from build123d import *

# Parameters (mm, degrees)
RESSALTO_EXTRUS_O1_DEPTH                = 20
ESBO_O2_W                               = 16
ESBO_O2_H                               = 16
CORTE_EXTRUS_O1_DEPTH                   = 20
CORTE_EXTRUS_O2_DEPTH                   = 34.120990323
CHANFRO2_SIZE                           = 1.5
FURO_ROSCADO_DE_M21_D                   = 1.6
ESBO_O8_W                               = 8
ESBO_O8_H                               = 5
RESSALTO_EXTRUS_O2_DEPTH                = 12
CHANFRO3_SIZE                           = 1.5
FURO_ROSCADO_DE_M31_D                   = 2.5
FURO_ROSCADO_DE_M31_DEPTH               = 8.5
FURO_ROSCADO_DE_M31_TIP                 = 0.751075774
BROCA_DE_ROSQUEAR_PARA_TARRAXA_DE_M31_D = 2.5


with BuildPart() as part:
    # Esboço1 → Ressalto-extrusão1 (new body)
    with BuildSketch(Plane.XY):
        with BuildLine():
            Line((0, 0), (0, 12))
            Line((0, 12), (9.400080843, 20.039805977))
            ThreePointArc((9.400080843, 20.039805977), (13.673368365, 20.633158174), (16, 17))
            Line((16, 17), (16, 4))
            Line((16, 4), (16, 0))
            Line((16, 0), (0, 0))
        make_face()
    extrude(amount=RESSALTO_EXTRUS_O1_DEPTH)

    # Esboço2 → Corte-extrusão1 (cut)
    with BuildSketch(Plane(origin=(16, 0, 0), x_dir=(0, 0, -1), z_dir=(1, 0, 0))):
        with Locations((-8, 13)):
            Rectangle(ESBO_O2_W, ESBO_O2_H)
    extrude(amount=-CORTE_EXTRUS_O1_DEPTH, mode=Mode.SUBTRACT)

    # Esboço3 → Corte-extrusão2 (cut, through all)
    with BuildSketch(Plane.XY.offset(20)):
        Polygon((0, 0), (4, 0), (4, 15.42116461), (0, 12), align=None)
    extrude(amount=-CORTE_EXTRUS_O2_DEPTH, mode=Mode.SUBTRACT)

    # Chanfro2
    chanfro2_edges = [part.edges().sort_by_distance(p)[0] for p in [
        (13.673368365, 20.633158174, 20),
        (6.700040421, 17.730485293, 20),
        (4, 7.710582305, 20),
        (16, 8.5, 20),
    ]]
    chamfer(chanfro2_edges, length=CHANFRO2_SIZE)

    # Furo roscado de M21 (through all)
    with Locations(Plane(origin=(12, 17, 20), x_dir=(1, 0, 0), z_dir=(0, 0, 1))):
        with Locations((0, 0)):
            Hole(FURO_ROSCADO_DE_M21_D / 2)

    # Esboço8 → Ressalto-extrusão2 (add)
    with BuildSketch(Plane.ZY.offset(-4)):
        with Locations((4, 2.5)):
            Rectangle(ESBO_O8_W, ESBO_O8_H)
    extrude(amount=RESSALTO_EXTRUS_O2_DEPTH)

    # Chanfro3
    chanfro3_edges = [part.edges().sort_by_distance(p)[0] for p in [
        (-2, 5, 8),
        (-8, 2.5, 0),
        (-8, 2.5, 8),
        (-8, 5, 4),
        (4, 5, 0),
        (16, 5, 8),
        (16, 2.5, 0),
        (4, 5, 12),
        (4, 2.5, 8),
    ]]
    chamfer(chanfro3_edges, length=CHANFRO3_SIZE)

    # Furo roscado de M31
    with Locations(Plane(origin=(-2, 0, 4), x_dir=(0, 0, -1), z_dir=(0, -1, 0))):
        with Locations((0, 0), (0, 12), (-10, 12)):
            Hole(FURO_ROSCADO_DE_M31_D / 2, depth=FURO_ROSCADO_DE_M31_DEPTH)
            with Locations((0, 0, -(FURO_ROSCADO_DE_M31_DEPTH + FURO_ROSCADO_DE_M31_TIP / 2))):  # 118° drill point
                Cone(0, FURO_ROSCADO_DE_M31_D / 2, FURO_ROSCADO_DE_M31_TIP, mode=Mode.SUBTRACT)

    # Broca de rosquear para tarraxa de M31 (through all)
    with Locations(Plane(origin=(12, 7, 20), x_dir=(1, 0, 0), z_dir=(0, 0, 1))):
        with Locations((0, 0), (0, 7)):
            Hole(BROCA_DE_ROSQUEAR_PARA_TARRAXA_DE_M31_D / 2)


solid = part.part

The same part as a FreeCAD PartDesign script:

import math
import FreeCAD as App
import Part
import Sketcher


def edges_at(feature, points):
    """Names of the edges that pass closest to the given points."""
    edges = feature.Shape.Edges
    near = lambda p: min(range(len(edges)), key=lambda i: edges[i].distToShape(Part.Vertex(*p))[0])
    return sorted({f"Edge{near(p) + 1}" for p in points})


def add_polygon(sketch, points):
    """Adds a closed chain of lines whose ends are joined by coincident constraints."""
    first, n = sketch.GeometryCount, len(points)
    for a, b in zip(points, points[1:] + points[:1]):
        sketch.addGeometry(Part.LineSegment(App.Vector(*a, 0), App.Vector(*b, 0)), False)
    for i in range(n):
        sketch.addConstraint(Sketcher.Constraint("Coincident", first + i, 2, first + (i + 1) % n, 1))

doc = App.newDocument("Part")
body = doc.addObject("PartDesign::Body", "Body")

sketch1 = doc.addObject("Sketcher::SketchObject", "Sketch")
body.addObject(sketch1)
sketch1.AttachmentSupport = (doc.XY_Plane, [""])
sketch1.MapMode = "FlatFace"
sketch1.addGeometry([
    Part.LineSegment(App.Vector(0, 12, 0), App.Vector(0, 0, 0)),
    Part.LineSegment(App.Vector(0, 0, 0), App.Vector(16, 0, 0)),
    Part.LineSegment(App.Vector(16, 0, 0), App.Vector(16, 17, 0)),
    Part.ArcOfCircle(Part.Circle(App.Vector(12, 17, 0), App.Vector(0, 0, 1), 4), math.radians(0), math.radians(130.540078)),
    Part.LineSegment(App.Vector(9.400081, 20.039806, 0), App.Vector(0, 12, 0)),
], False)
sketch1.addConstraint([
    Sketcher.Constraint("Coincident", 0, 2, 1, 1),
    Sketcher.Constraint("Coincident", 1, 2, 2, 1),
    Sketcher.Constraint("Tangent", 2, 2, 3, 1),
    Sketcher.Constraint("Tangent", 3, 2, 4, 1),
    Sketcher.Constraint("Coincident", 4, 2, 0, 1),
    Sketcher.Constraint("Vertical", 0),
    Sketcher.Constraint("Horizontal", 1),
    Sketcher.Constraint("Vertical", 2),
    Sketcher.Constraint("Coincident", 0, 2, -1, 1),
    Sketcher.Constraint("Radius", 3, 4.0),
    Sketcher.Constraint("DistanceX", 1, 1, 1, 2, 16.0),
    Sketcher.Constraint("DistanceY", 0, 2, 0, 1, 12.0),
    Sketcher.Constraint("DistanceY", 2, 1, 2, 2, 17.0),
])
pad1 = doc.addObject("PartDesign::Pad", "Pad")
body.addObject(pad1)
pad1.Profile = sketch1
pad1.Length = 20

sketch2 = doc.addObject("Sketcher::SketchObject", "Sketch001")
body.addObject(sketch2)
sketch2.AttachmentSupport = (doc.YZ_Plane, [""])
sketch2.MapMode = "FlatFace"
sketch2.AttachmentOffset = App.Placement(App.Vector(0, 0, 16), App.Rotation())
add_polygon(sketch2, [(21, 16), (5, 16), (5, 0), (21, 0)])
sketch2.addConstraint([
    Sketcher.Constraint("Horizontal", 0),
    Sketcher.Constraint("Vertical", 1),
    Sketcher.Constraint("Horizontal", 2),
    Sketcher.Constraint("Vertical", 3),
    Sketcher.Constraint("PointOnObject", 1, 2, -1),
    Sketcher.Constraint("Equal", 2, 1),
    Sketcher.Constraint("DistanceX", 0, 2, 0, 1, 16.0),
    Sketcher.Constraint("DistanceX", -1, 1, 0, 2, 5.0),
])
pocket1 = doc.addObject("PartDesign::Pocket", "Pocket")
body.addObject(pocket1)
pocket1.Profile = sketch2
pocket1.Length = 20

sketch3 = doc.addObject("Sketcher::SketchObject", "Sketch002")
body.addObject(sketch3)
sketch3.AttachmentSupport = (doc.XY_Plane, [""])
sketch3.MapMode = "FlatFace"
sketch3.AttachmentOffset = App.Placement(App.Vector(0, 0, 20), App.Rotation())
add_polygon(sketch3, [(0, 0), (4, 0), (4, 15.421165), (0, 12)])
sketch3.addConstraint([
    Sketcher.Constraint("Horizontal", 0),
    Sketcher.Constraint("Vertical", 1),
    Sketcher.Constraint("Vertical", 3),
    Sketcher.Constraint("Coincident", 3, 2, -1, 1),
    Sketcher.Constraint("DistanceX", 0, 1, 0, 2, 4.0),
    Sketcher.Constraint("DistanceY", 3, 2, 3, 1, 12.0),
    Sketcher.Constraint("DistanceY", 1, 1, 1, 2, 15.421165),
])
pocket2 = doc.addObject("PartDesign::Pocket", "Pocket001")
body.addObject(pocket2)
pocket2.Profile = sketch3
pocket2.Type = "ThroughAll"
doc.recompute()

chamfer = doc.addObject("PartDesign::Chamfer", "Chamfer")
body.addObject(chamfer)
chamfer.Base = (pocket2, edges_at(pocket2, [
    (13.673, 20.633, 20),
    (6.7, 17.73, 20),
    (4, 7.711, 20),
    (16, 8.5, 20),
]))
chamfer.Size = 1.5

sketch4 = doc.addObject("Sketcher::SketchObject", "Sketch003")
body.addObject(sketch4)
sketch4.AttachmentSupport = (doc.XY_Plane, [""])
sketch4.MapMode = "FlatFace"
sketch4.AttachmentOffset = App.Placement(App.Vector(0, 0, 20), App.Rotation())
sketch4.addGeometry(Part.Circle(App.Vector(12, 17, 0), App.Vector(0, 0, 1), 0.8), False)
sketch4.addConstraint([
    Sketcher.Constraint("Diameter", 0, 1.6),
    Sketcher.Constraint("DistanceX", -1, 1, 0, 3, 12.0),
    Sketcher.Constraint("DistanceY", -1, 1, 0, 3, 17.0),
])
doc.recompute()
hole = doc.addObject("PartDesign::Hole", "Hole")
body.addObject(hole)
hole.Profile = sketch4
hole.ThreadType = "None"
hole.Diameter = 1.6
hole.DepthType = "ThroughAll"

sketch5 = doc.addObject("Sketcher::SketchObject", "Sketch004")
body.addObject(sketch5)
sketch5.AttachmentSupport = (doc.YZ_Plane, [""])
sketch5.MapMode = "FlatFace"
sketch5.AttachmentOffset = App.Placement(App.Vector(0, 0, 4), App.Rotation())
add_polygon(sketch5, [(5, 0), (0, 0), (0, 8), (5, 8)])
sketch5.addConstraint([
    Sketcher.Constraint("Horizontal", 0),
    Sketcher.Constraint("Vertical", 1),
    Sketcher.Constraint("Horizontal", 2),
    Sketcher.Constraint("Vertical", 3),
    Sketcher.Constraint("Coincident", 0, 2, -1, 1),
    Sketcher.Constraint("DistanceX", 0, 2, 0, 1, 5.0),
    Sketcher.Constraint("DistanceY", 1, 1, 1, 2, 8.0),
])
pad2 = doc.addObject("PartDesign::Pad", "Pad001")
body.addObject(pad2)
pad2.Profile = sketch5
pad2.Length = 12
pad2.Reversed = True
doc.recompute()

chamfer2 = doc.addObject("PartDesign::Chamfer", "Chamfer001")
body.addObject(chamfer2)
chamfer2.Base = (pad2, edges_at(pad2, [
    (-2, 5, 8),
    (-8, 2.5, 0),
    (-8, 2.5, 8),
    (-8, 5, 4),
    (4, 5, 0),
    (16, 5, 8),
    (16, 2.5, 0),
    (4, 5, 12),
    (4, 2.5, 8),
]))
chamfer2.Size = 1.5

sketch6 = doc.addObject("Sketcher::SketchObject", "Sketch005")
body.addObject(sketch6)
sketch6.AttachmentSupport = (doc.XZ_Plane, [""])
sketch6.MapMode = "FlatFace"
sketch6.addGeometry([
    Part.Circle(App.Vector(-2, 4, 0), App.Vector(0, 0, 1), 1.25),
    Part.Circle(App.Vector(10, 4, 0), App.Vector(0, 0, 1), 1.25),
    Part.Circle(App.Vector(10, 14, 0), App.Vector(0, 0, 1), 1.25),
], False)
sketch6.addConstraint([
    Sketcher.Constraint("Equal", 0, 1),
    Sketcher.Constraint("Equal", 1, 2),
    Sketcher.Constraint("Horizontal", 0, 3, 1, 3),
    Sketcher.Constraint("Vertical", 1, 3, 2, 3),
    Sketcher.Constraint("Diameter", 0, 2.5),
    Sketcher.Constraint("DistanceX", 0, 3, -1, 1, 2.0),
    Sketcher.Constraint("DistanceY", -1, 1, 0, 3, 4.0),
    Sketcher.Constraint("DistanceX", -1, 1, 1, 3, 10.0),
    Sketcher.Constraint("DistanceY", -1, 1, 2, 3, 14.0),
])
doc.recompute()
hole2 = doc.addObject("PartDesign::Hole", "Hole001")
body.addObject(hole2)
hole2.Profile = sketch6
hole2.ThreadType = "None"
hole2.Diameter = 2.5
hole2.DepthType = "Dimension"
hole2.Depth = 8.5
hole2.DrillPoint = "Angled"
hole2.DrillPointAngle = 118

sketch7 = doc.addObject("Sketcher::SketchObject", "Sketch006")
body.addObject(sketch7)
sketch7.AttachmentSupport = (doc.XY_Plane, [""])
sketch7.MapMode = "FlatFace"
sketch7.AttachmentOffset = App.Placement(App.Vector(0, 0, 20), App.Rotation())
sketch7.addGeometry([
    Part.Circle(App.Vector(12, 7, 0), App.Vector(0, 0, 1), 1.25),
    Part.Circle(App.Vector(12, 14, 0), App.Vector(0, 0, 1), 1.25),
], False)
sketch7.addConstraint([
    Sketcher.Constraint("Equal", 0, 1),
    Sketcher.Constraint("Vertical", 0, 3, 1, 3),
    Sketcher.Constraint("Diameter", 0, 2.5),
    Sketcher.Constraint("DistanceX", -1, 1, 0, 3, 12.0),
    Sketcher.Constraint("DistanceY", -1, 1, 0, 3, 7.0),
    Sketcher.Constraint("DistanceY", -1, 1, 1, 3, 14.0),
])
doc.recompute()
hole3 = doc.addObject("PartDesign::Hole", "Hole002")
body.addObject(hole3)
hole3.Profile = sketch7
hole3.ThreadType = "None"
hole3.Diameter = 2.5
hole3.DepthType = "ThroughAll"

doc.recompute()
